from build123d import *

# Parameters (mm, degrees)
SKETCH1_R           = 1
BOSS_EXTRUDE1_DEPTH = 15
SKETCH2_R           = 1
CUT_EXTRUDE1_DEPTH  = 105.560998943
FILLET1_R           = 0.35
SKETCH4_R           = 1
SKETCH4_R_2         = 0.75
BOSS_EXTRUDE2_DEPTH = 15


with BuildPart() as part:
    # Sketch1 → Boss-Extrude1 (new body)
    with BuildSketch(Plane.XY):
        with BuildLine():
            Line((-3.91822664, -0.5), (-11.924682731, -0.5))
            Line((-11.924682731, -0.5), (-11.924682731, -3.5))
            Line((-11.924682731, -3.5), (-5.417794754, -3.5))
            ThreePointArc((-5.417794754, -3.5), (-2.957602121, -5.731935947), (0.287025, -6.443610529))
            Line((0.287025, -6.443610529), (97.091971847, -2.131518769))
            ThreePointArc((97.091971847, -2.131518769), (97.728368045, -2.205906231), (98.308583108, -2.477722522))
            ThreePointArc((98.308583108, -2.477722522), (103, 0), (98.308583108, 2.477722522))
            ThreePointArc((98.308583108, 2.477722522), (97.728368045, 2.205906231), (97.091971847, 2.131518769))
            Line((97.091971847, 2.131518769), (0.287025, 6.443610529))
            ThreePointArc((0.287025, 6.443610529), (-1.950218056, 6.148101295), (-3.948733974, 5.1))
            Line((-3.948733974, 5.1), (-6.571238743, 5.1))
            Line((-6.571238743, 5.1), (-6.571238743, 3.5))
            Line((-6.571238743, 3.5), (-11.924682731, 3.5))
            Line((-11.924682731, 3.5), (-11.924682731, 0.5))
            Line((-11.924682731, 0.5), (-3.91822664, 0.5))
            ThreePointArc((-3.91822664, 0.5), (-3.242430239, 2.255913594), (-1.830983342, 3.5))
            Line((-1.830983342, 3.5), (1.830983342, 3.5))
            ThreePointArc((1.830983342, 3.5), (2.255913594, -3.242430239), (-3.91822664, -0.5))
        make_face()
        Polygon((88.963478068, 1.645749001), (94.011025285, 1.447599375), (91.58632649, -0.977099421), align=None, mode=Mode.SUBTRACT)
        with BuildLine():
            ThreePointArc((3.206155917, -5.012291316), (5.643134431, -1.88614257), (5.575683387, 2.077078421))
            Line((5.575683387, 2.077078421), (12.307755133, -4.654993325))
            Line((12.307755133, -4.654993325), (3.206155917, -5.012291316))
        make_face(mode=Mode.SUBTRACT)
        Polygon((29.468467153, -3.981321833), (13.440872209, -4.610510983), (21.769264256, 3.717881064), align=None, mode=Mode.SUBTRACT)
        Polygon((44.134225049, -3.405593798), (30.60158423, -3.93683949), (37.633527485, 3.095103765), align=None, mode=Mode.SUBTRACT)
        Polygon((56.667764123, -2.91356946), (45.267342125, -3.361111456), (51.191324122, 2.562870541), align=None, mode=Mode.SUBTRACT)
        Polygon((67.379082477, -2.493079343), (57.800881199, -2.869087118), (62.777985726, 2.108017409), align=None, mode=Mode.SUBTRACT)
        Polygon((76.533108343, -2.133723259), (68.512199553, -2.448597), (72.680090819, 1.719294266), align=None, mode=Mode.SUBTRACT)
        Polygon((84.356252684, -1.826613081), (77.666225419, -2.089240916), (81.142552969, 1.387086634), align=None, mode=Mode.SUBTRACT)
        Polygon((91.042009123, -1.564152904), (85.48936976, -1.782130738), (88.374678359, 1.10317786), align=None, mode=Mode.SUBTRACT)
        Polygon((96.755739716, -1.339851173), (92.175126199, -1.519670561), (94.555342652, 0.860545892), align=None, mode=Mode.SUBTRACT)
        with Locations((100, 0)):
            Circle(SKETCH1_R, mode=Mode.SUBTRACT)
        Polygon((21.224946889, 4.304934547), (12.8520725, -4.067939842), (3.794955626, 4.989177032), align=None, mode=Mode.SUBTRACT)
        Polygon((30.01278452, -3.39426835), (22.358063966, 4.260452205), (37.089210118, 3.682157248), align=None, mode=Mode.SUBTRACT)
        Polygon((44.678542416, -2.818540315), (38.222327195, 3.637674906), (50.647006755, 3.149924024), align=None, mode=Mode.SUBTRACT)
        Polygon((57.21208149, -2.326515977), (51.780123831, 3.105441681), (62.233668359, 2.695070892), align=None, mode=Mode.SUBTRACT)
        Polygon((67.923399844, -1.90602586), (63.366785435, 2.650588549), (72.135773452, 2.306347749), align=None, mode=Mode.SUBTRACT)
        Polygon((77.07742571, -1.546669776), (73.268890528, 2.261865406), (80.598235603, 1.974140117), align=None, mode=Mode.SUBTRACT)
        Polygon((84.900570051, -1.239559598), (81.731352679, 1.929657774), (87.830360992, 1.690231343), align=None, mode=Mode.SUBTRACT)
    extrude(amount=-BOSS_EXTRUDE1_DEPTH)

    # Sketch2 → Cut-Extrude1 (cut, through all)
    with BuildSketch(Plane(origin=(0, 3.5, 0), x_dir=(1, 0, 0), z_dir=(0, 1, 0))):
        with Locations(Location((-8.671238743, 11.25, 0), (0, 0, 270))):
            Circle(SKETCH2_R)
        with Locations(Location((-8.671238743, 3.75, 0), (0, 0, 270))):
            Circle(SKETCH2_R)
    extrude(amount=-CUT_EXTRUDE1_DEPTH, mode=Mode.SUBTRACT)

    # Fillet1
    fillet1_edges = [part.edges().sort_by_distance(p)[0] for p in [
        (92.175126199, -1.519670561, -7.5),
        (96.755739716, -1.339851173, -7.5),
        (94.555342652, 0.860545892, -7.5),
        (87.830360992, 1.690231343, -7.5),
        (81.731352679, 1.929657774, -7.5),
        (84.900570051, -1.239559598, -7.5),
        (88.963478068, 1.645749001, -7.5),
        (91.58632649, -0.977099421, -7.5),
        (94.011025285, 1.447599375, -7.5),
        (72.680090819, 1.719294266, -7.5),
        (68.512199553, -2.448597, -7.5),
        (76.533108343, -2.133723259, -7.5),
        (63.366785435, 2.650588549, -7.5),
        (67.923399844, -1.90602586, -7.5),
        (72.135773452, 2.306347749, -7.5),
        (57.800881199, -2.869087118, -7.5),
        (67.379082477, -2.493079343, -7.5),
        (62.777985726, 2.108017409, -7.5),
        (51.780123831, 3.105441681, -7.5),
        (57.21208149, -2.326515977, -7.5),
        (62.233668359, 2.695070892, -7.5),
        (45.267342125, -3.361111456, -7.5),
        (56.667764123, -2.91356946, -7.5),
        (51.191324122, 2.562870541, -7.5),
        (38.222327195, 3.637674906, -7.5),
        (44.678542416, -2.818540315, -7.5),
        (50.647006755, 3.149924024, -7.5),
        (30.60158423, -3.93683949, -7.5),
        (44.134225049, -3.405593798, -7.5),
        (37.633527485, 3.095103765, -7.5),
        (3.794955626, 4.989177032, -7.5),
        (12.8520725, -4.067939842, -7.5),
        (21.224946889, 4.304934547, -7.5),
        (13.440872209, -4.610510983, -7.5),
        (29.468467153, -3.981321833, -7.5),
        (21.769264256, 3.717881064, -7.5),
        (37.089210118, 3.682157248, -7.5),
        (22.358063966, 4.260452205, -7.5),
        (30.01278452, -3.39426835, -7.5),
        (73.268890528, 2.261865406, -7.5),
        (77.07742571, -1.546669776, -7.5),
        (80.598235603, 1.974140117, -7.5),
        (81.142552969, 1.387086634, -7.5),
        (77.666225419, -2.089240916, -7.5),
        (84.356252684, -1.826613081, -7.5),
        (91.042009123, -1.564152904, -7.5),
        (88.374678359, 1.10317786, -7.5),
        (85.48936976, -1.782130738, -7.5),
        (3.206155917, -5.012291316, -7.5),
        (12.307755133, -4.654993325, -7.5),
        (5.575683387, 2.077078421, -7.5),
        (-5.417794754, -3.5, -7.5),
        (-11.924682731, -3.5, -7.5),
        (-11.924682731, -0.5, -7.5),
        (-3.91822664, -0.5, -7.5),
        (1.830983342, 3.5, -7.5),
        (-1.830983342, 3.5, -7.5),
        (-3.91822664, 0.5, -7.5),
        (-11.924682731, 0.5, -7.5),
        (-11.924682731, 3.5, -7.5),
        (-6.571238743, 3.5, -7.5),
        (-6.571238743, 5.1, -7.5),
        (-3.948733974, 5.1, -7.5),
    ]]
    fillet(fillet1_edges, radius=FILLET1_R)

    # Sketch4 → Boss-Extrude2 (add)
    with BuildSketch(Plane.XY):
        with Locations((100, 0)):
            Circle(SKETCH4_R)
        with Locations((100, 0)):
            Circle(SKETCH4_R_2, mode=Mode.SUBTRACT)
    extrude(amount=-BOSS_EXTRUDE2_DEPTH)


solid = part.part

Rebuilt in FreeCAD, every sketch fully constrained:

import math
import FreeCAD as App
import Part
import Sketcher

V = App.Vector
Q = App.Units.Quantity


def edges_at(feature, points):
    """Names of the edges that pass closest to the given points."""
    edges = feature.Shape.Edges
    near = lambda p: min(range(len(edges)), key=lambda i: edges[i].distToShape(Part.Vertex(*p))[0])
    return sorted({f"Edge{near(p) + 1}" for p in points})

doc = App.newDocument("Part")
body = doc.addObject("PartDesign::Body", "Body")

# Sketch on XY plane
sketch1 = doc.addObject("Sketcher::SketchObject", "Sketch")
body.addObject(sketch1)
sketch1.AttachmentSupport = (doc.XY_Plane, [""])
sketch1.MapMode = "FlatFace"
sketch1.addGeometry(Part.LineSegment(V(-3.9, -0.5, 0), V(-11.9, -0.5, 0)), False)
sketch1.addGeometry(Part.LineSegment(V(-11.9, -0.5, 0), V(-11.9, -3.5, 0)), False)
sketch1.addGeometry(Part.LineSegment(V(-11.9, -3.5, 0), V(-5.4, -3.5, 0)), False)
sketch1.addGeometry(Part.ArcOfCircle(Part.Circle(V(0, 0, 0), V(0, 0, 1), 6.4), math.radians(-147), math.radians(-87)), False)
sketch1.addGeometry(Part.LineSegment(V(0.3, -6.4, 0), V(97.1, -2.1, 0)), False)
sketch1.addGeometry(Part.ArcOfCircle(Part.Circle(V(97.2, -4.1, 0), V(0, 0, 1), 2), math.radians(56), math.radians(93)), False)
sketch1.addGeometry(Part.ArcOfCircle(Part.Circle(V(100, 0, 0), V(0, 0, 1), 3), math.radians(-124), math.radians(124)), False)
sketch1.addGeometry(Part.ArcOfCircle(Part.Circle(V(97.2, 4.1, 0), V(0, 0, 1), 2), math.radians(-93), math.radians(-56)), False)
sketch1.addGeometry(Part.LineSegment(V(97.1, 2.1, 0), V(0.3, 6.4, 0)), False)
sketch1.addGeometry(Part.ArcOfCircle(Part.Circle(V(0, 0, 0), V(0, 0, 1), 6.4), math.radians(87), math.radians(128)), False)
sketch1.addGeometry(Part.LineSegment(V(-3.9, 5.1, 0), V(-6.6, 5.1, 0)), False)
sketch1.addGeometry(Part.LineSegment(V(-6.6, 5.1, 0), V(-6.6, 3.5, 0)), False)
sketch1.addGeometry(Part.LineSegment(V(-6.6, 3.5, 0), V(-11.9, 3.5, 0)), False)
sketch1.addGeometry(Part.LineSegment(V(-11.9, 3.5, 0), V(-11.9, 0.5, 0)), False)
sketch1.addGeometry(Part.LineSegment(V(-11.9, 0.5, 0), V(-3.9, 0.5, 0)), False)
sketch1.addGeometry(Part.ArcOfCircle(Part.Circle(V(0, 0, 0), V(0, 0, 1), 4), math.radians(118), math.radians(173)), False)
sketch1.addGeometry(Part.LineSegment(V(-1.8, 3.5, 0), V(1.8, 3.5, 0)), False)
sketch1.addGeometry(Part.ArcOfCircle(Part.Circle(V(0, 0, 0), V(0, 0, 1), 4), math.radians(-173), math.radians(62)), False)
sketch1.addGeometry(Part.LineSegment(V(12.3, -4.7, 0), V(3.2, -5, 0)), False)
sketch1.addGeometry(Part.ArcOfCircle(Part.Circle(V(0, 0, 0), V(0, 0, 1), 6), math.radians(-57), math.radians(20)), False)
sketch1.addGeometry(Part.LineSegment(V(5.6, 2.1, 0), V(12.3, -4.7, 0)), False)
sketch1.addGeometry(Part.LineSegment(V(21.8, 3.7, 0), V(29.5, -4, 0)), False)
sketch1.addGeometry(Part.LineSegment(V(29.5, -4, 0), V(13.4, -4.6, 0)), False)
sketch1.addGeometry(Part.LineSegment(V(13.4, -4.6, 0), V(21.8, 3.7, 0)), False)
sketch1.addGeometry(Part.LineSegment(V(37.6, 3.1, 0), V(44.1, -3.4, 0)), False)
sketch1.addGeometry(Part.LineSegment(V(44.1, -3.4, 0), V(30.6, -3.9, 0)), False)
sketch1.addGeometry(Part.LineSegment(V(30.6, -3.9, 0), V(37.6, 3.1, 0)), False)
sketch1.addGeometry(Part.LineSegment(V(51.2, 2.6, 0), V(56.7, -2.9, 0)), False)
sketch1.addGeometry(Part.LineSegment(V(56.7, -2.9, 0), V(45.3, -3.4, 0)), False)
sketch1.addGeometry(Part.LineSegment(V(45.3, -3.4, 0), V(51.2, 2.6, 0)), False)
sketch1.addGeometry(Part.LineSegment(V(62.8, 2.1, 0), V(67.4, -2.5, 0)), False)
sketch1.addGeometry(Part.LineSegment(V(67.4, -2.5, 0), V(57.8, -2.9, 0)), False)
sketch1.addGeometry(Part.LineSegment(V(57.8, -2.9, 0), V(62.8, 2.1, 0)), False)
sketch1.addGeometry(Part.LineSegment(V(72.7, 1.7, 0), V(76.5, -2.1, 0)), False)
sketch1.addGeometry(Part.LineSegment(V(76.5, -2.1, 0), V(68.5, -2.4, 0)), False)
sketch1.addGeometry(Part.LineSegment(V(68.5, -2.4, 0), V(72.7, 1.7, 0)), False)
sketch1.addGeometry(Part.LineSegment(V(81.1, 1.4, 0), V(84.4, -1.8, 0)), False)
sketch1.addGeometry(Part.LineSegment(V(84.4, -1.8, 0), V(77.7, -2.1, 0)), False)
sketch1.addGeometry(Part.LineSegment(V(77.7, -2.1, 0), V(81.1, 1.4, 0)), False)
sketch1.addGeometry(Part.LineSegment(V(88.4, 1.1, 0), V(91, -1.6, 0)), False)
sketch1.addGeometry(Part.LineSegment(V(91, -1.6, 0), V(85.5, -1.8, 0)), False)
sketch1.addGeometry(Part.LineSegment(V(85.5, -1.8, 0), V(88.4, 1.1, 0)), False)
sketch1.addGeometry(Part.LineSegment(V(94.6, 0.9, 0), V(96.8, -1.3, 0)), False)
sketch1.addGeometry(Part.LineSegment(V(96.8, -1.3, 0), V(92.2, -1.5, 0)), False)
sketch1.addGeometry(Part.LineSegment(V(92.2, -1.5, 0), V(94.6, 0.9, 0)), False)
sketch1.addGeometry(Part.LineSegment(V(3.8, 5, 0), V(21.2, 4.3, 0)), False)
sketch1.addGeometry(Part.LineSegment(V(21.2, 4.3, 0), V(12.9, -4.1, 0)), False)
sketch1.addGeometry(Part.LineSegment(V(12.9, -4.1, 0), V(3.8, 5, 0)), False)
sketch1.addGeometry(Part.LineSegment(V(37.1, 3.7, 0), V(30, -3.4, 0)), False)
sketch1.addGeometry(Part.LineSegment(V(30, -3.4, 0), V(22.4, 4.3, 0)), False)
sketch1.addGeometry(Part.LineSegment(V(22.4, 4.3, 0), V(37.1, 3.7, 0)), False)
sketch1.addGeometry(Part.LineSegment(V(50.6, 3.1, 0), V(44.7, -2.8, 0)), False)
sketch1.addGeometry(Part.LineSegment(V(44.7, -2.8, 0), V(38.2, 3.6, 0)), False)
sketch1.addGeometry(Part.LineSegment(V(38.2, 3.6, 0), V(50.6, 3.1, 0)), False)
sketch1.addGeometry(Part.LineSegment(V(62.2, 2.7, 0), V(57.2, -2.3, 0)), False)
sketch1.addGeometry(Part.LineSegment(V(57.2, -2.3, 0), V(51.8, 3.1, 0)), False)
sketch1.addGeometry(Part.LineSegment(V(51.8, 3.1, 0), V(62.2, 2.7, 0)), False)
sketch1.addGeometry(Part.LineSegment(V(72.1, 2.3, 0), V(67.9, -1.9, 0)), False)
sketch1.addGeometry(Part.LineSegment(V(67.9, -1.9, 0), V(63.4, 2.7, 0)), False)
sketch1.addGeometry(Part.LineSegment(V(63.4, 2.7, 0), V(72.1, 2.3, 0)), False)
sketch1.addGeometry(Part.LineSegment(V(80.6, 2, 0), V(77.1, -1.5, 0)), False)
sketch1.addGeometry(Part.LineSegment(V(77.1, -1.5, 0), V(73.3, 2.3, 0)), False)
sketch1.addGeometry(Part.LineSegment(V(73.3, 2.3, 0), V(80.6, 2, 0)), False)
sketch1.addGeometry(Part.LineSegment(V(87.8, 1.7, 0), V(84.9, -1.2, 0)), False)
sketch1.addGeometry(Part.LineSegment(V(84.9, -1.2, 0), V(81.7, 1.9, 0)), False)
sketch1.addGeometry(Part.LineSegment(V(81.7, 1.9, 0), V(87.8, 1.7, 0)), False)
sketch1.addGeometry(Part.LineSegment(V(91.6, -1, 0), V(89, 1.6, 0)), False)
sketch1.addGeometry(Part.LineSegment(V(89, 1.6, 0), V(94, 1.4, 0)), False)
sketch1.addGeometry(Part.LineSegment(V(94, 1.4, 0), V(91.6, -1, 0)), False)
sketch1.addGeometry(Part.Circle(V(100, 0, 0), V(0, 0, 1), 1), False)
sketch1.addConstraint(Sketcher.Constraint("Coincident", 0, 2, 1, 1))
sketch1.addConstraint(Sketcher.Constraint("Coincident", 1, 2, 2, 1))
sketch1.addConstraint(Sketcher.Constraint("Coincident", 2, 2, 3, 1))
sketch1.addConstraint(Sketcher.Constraint("Tangent", 3, 2, 4, 1))
sketch1.addConstraint(Sketcher.Constraint("Tangent", 4, 2, 5, 2))
sketch1.addConstraint(Sketcher.Constraint("Tangent", 5, 1, 6, 1))
sketch1.addConstraint(Sketcher.Constraint("Tangent", 6, 2, 7, 2))
sketch1.addConstraint(Sketcher.Constraint("Tangent", 7, 1, 8, 1))
sketch1.addConstraint(Sketcher.Constraint("Tangent", 8, 2, 9, 1))
sketch1.addConstraint(Sketcher.Constraint("Coincident", 9, 2, 10, 1))
sketch1.addConstraint(Sketcher.Constraint("Coincident", 10, 2, 11, 1))
sketch1.addConstraint(Sketcher.Constraint("Coincident", 11, 2, 12, 1))
sketch1.addConstraint(Sketcher.Constraint("Coincident", 12, 2, 13, 1))
sketch1.addConstraint(Sketcher.Constraint("Coincident", 13, 2, 14, 1))
sketch1.addConstraint(Sketcher.Constraint("Coincident", 14, 2, 15, 2))
sketch1.addConstraint(Sketcher.Constraint("Coincident", 15, 1, 16, 1))
sketch1.addConstraint(Sketcher.Constraint("Coincident", 16, 2, 17, 2))
sketch1.addConstraint(Sketcher.Constraint("Coincident", 17, 1, 0, 1))
sketch1.addConstraint(Sketcher.Constraint("Coincident", 18, 2, 19, 1))
sketch1.addConstraint(Sketcher.Constraint("Coincident", 19, 2, 20, 1))
sketch1.addConstraint(Sketcher.Constraint("Coincident", 20, 2, 18, 1))
sketch1.addConstraint(Sketcher.Constraint("Coincident", 21, 2, 22, 1))
sketch1.addConstraint(Sketcher.Constraint("Coincident", 22, 2, 23, 1))
sketch1.addConstraint(Sketcher.Constraint("Coincident", 23, 2, 21, 1))
sketch1.addConstraint(Sketcher.Constraint("Coincident", 24, 2, 25, 1))
sketch1.addConstraint(Sketcher.Constraint("Coincident", 25, 2, 26, 1))
sketch1.addConstraint(Sketcher.Constraint("Coincident", 26, 2, 24, 1))
sketch1.addConstraint(Sketcher.Constraint("Coincident", 27, 2, 28, 1))
sketch1.addConstraint(Sketcher.Constraint("Coincident", 28, 2, 29, 1))
sketch1.addConstraint(Sketcher.Constraint("Coincident", 29, 2, 27, 1))
sketch1.addConstraint(Sketcher.Constraint("Coincident", 30, 2, 31, 1))
sketch1.addConstraint(Sketcher.Constraint("Coincident", 31, 2, 32, 1))
sketch1.addConstraint(Sketcher.Constraint("Coincident", 32, 2, 30, 1))
sketch1.addConstraint(Sketcher.Constraint("Coincident", 33, 2, 34, 1))
sketch1.addConstraint(Sketcher.Constraint("Coincident", 34, 2, 35, 1))
sketch1.addConstraint(Sketcher.Constraint("Coincident", 35, 2, 33, 1))
sketch1.addConstraint(Sketcher.Constraint("Coincident", 36, 2, 37, 1))
sketch1.addConstraint(Sketcher.Constraint("Coincident", 37, 2, 38, 1))
sketch1.addConstraint(Sketcher.Constraint("Coincident", 38, 2, 36, 1))
sketch1.addConstraint(Sketcher.Constraint("Coincident", 39, 2, 40, 1))
sketch1.addConstraint(Sketcher.Constraint("Coincident", 40, 2, 41, 1))
sketch1.addConstraint(Sketcher.Constraint("Coincident", 41, 2, 39, 1))
sketch1.addConstraint(Sketcher.Constraint("Coincident", 42, 2, 43, 1))
sketch1.addConstraint(Sketcher.Constraint("Coincident", 43, 2, 44, 1))
sketch1.addConstraint(Sketcher.Constraint("Coincident", 44, 2, 42, 1))
sketch1.addConstraint(Sketcher.Constraint("Coincident", 45, 2, 46, 1))
sketch1.addConstraint(Sketcher.Constraint("Coincident", 46, 2, 47, 1))
sketch1.addConstraint(Sketcher.Constraint("Coincident", 47, 2, 45, 1))
sketch1.addConstraint(Sketcher.Constraint("Coincident", 48, 2, 49, 1))
sketch1.addConstraint(Sketcher.Constraint("Coincident", 49, 2, 50, 1))
sketch1.addConstraint(Sketcher.Constraint("Coincident", 50, 2, 48, 1))
sketch1.addConstraint(Sketcher.Constraint("Coincident", 51, 2, 52, 1))
sketch1.addConstraint(Sketcher.Constraint("Coincident", 52, 2, 53, 1))
sketch1.addConstraint(Sketcher.Constraint("Coincident", 53, 2, 51, 1))
sketch1.addConstraint(Sketcher.Constraint("Coincident", 54, 2, 55, 1))
sketch1.addConstraint(Sketcher.Constraint("Coincident", 55, 2, 56, 1))
sketch1.addConstraint(Sketcher.Constraint("Coincident", 56, 2, 54, 1))
sketch1.addConstraint(Sketcher.Constraint("Coincident", 57, 2, 58, 1))
sketch1.addConstraint(Sketcher.Constraint("Coincident", 58, 2, 59, 1))
sketch1.addConstraint(Sketcher.Constraint("Coincident", 59, 2, 57, 1))
sketch1.addConstraint(Sketcher.Constraint("Coincident", 60, 2, 61, 1))
sketch1.addConstraint(Sketcher.Constraint("Coincident", 61, 2, 62, 1))
sketch1.addConstraint(Sketcher.Constraint("Coincident", 62, 2, 60, 1))
sketch1.addConstraint(Sketcher.Constraint("Coincident", 63, 2, 64, 1))
sketch1.addConstraint(Sketcher.Constraint("Coincident", 64, 2, 65, 1))
sketch1.addConstraint(Sketcher.Constraint("Coincident", 65, 2, 63, 1))
sketch1.addConstraint(Sketcher.Constraint("Coincident", 66, 2, 67, 1))
sketch1.addConstraint(Sketcher.Constraint("Coincident", 67, 2, 68, 1))
sketch1.addConstraint(Sketcher.Constraint("Coincident", 68, 2, 66, 1))
sketch1.addConstraint(Sketcher.Constraint("Horizontal", 0))
sketch1.addConstraint(Sketcher.Constraint("Vertical", 1))
sketch1.addConstraint(Sketcher.Constraint("Horizontal", 2))
sketch1.addConstraint(Sketcher.Constraint("Horizontal", 10))
sketch1.addConstraint(Sketcher.Constraint("Vertical", 11))
sketch1.addConstraint(Sketcher.Constraint("Horizontal", 12))
sketch1.addConstraint(Sketcher.Constraint("Vertical", 13))
sketch1.addConstraint(Sketcher.Constraint("Horizontal", 14))
sketch1.addConstraint(Sketcher.Constraint("Horizontal", 16))
sketch1.addConstraint(Sketcher.Constraint("Coincident", 3, 3, -1, 1))
sketch1.addConstraint(Sketcher.Constraint("Coincident", 9, 3, -1, 1))
sketch1.addConstraint(Sketcher.Constraint("Coincident", 15, 3, -1, 1))
sketch1.addConstraint(Sketcher.Constraint("Coincident", 17, 3, -1, 1))
sketch1.addConstraint(Sketcher.Constraint("Coincident", 19, 3, -1, 1))
sketch1.addConstraint(Sketcher.Constraint("Coincident", 69, 3, 6, 3))
sketch1.addConstraint(Sketcher.Constraint("Equal", 5, 7))
sketch1.addConstraint(Sketcher.Constraint("Equal", 3, 9))
sketch1.addConstraint(Sketcher.Constraint("Equal", 15, 17))
sketch1.addConstraint(Sketcher.Constraint("Symmetric", 5, 3, 7, 3, -1))
sketch1.addConstraint(Sketcher.Constraint("Symmetric", 1, 2, 12, 2, -1))
sketch1.addConstraint(Sketcher.Constraint("Parallel", 20, 21))
sketch1.addConstraint(Sketcher.Constraint("Parallel", 18, 22))
sketch1.addConstraint(Sketcher.Constraint("Perpendicular", 21, 23))
sketch1.addConstraint(Sketcher.Constraint("Perpendicular", 23, 24))
sketch1.addConstraint(Sketcher.Constraint("Parallel", 22, 25))
sketch1.addConstraint(Sketcher.Constraint("Perpendicular", 24, 26))
sketch1.addConstraint(Sketcher.Constraint("Perpendicular", 26, 27))
sketch1.addConstraint(Sketcher.Constraint("Parallel", 25, 28))
sketch1.addConstraint(Sketcher.Constraint("Perpendicular", 27, 29))
sketch1.addConstraint(Sketcher.Constraint("Perpendicular", 29, 30))
sketch1.addConstraint(Sketcher.Constraint("Parallel", 28, 31))
sketch1.addConstraint(Sketcher.Constraint("Perpendicular", 30, 32))
sketch1.addConstraint(Sketcher.Constraint("Perpendicular", 32, 33))
sketch1.addConstraint(Sketcher.Constraint("Parallel", 31, 34))
sketch1.addConstraint(Sketcher.Constraint("Perpendicular", 33, 35))
sketch1.addConstraint(Sketcher.Constraint("Perpendicular", 35, 36))
sketch1.addConstraint(Sketcher.Constraint("Parallel", 34, 37))
sketch1.addConstraint(Sketcher.Constraint("Perpendicular", 36, 38))
sketch1.addConstraint(Sketcher.Constraint("Perpendicular", 38, 39))
sketch1.addConstraint(Sketcher.Constraint("Parallel", 37, 40))
sketch1.addConstraint(Sketcher.Constraint("Perpendicular", 39, 41))
sketch1.addConstraint(Sketcher.Constraint("Perpendicular", 41, 42))
sketch1.addConstraint(Sketcher.Constraint("Parallel", 40, 43))
sketch1.addConstraint(Sketcher.Constraint("Perpendicular", 42, 44))
sketch1.addConstraint(Sketcher.Constraint("Parallel", 44, 46))
sketch1.addConstraint(Sketcher.Constraint("Perpendicular", 46, 47))
sketch1.addConstraint(Sketcher.Constraint("Perpendicular", 47, 48))
sketch1.addConstraint(Sketcher.Constraint("Perpendicular", 48, 49))
sketch1.addConstraint(Sketcher.Constraint("Parallel", 45, 50))
sketch1.addConstraint(Sketcher.Constraint("Perpendicular", 49, 51))
sketch1.addConstraint(Sketcher.Constraint("Perpendicular", 51, 52))
sketch1.addConstraint(Sketcher.Constraint("Parallel", 50, 53))
sketch1.addConstraint(Sketcher.Constraint("Perpendicular", 52, 54))
sketch1.addConstraint(Sketcher.Constraint("Perpendicular", 54, 55))
sketch1.addConstraint(Sketcher.Constraint("Parallel", 53, 56))
sketch1.addConstraint(Sketcher.Constraint("Perpendicular", 55, 57))
sketch1.addConstraint(Sketcher.Constraint("Perpendicular", 57, 58))
sketch1.addConstraint(Sketcher.Constraint("Parallel", 56, 59))
sketch1.addConstraint(Sketcher.Constraint("Perpendicular", 58, 60))
sketch1.addConstraint(Sketcher.Constraint("Perpendicular", 60, 61))
sketch1.addConstraint(Sketcher.Constraint("Parallel", 59, 62))
sketch1.addConstraint(Sketcher.Constraint("Perpendicular", 61, 63))
sketch1.addConstraint(Sketcher.Constraint("Perpendicular", 63, 64))
sketch1.addConstraint(Sketcher.Constraint("Parallel", 62, 65))
sketch1.addConstraint(Sketcher.Constraint("Parallel", 64, 66))
sketch1.addConstraint(Sketcher.Constraint("Parallel", 65, 67))
sketch1.addConstraint(Sketcher.Constraint("Perpendicular", 66, 68))
sketch1.addConstraint(Sketcher.Constraint("Horizontal", 12, 2, 15, 1))
sketch1.addConstraint(Sketcher.Constraint("Vertical", 14, 2, 17, 1))
sketch1.addConstraint(Sketcher.Constraint("Diameter", 69, Q("2 mm")))
sketch1.addConstraint(Sketcher.Constraint("Radius", 5, Q("2 mm")))
sketch1.addConstraint(Sketcher.Constraint("Radius", 6, Q("3 mm")))
sketch1.addConstraint(Sketcher.Constraint("DistanceY", 1, 2, 1, 1, Q("3 mm")))
sketch1.addConstraint(Sketcher.Constraint("Angle", 20, Q("-45 deg")))
sketch1.addConstraint(Sketcher.Constraint("Radius", 3, Q("6.45 mm")))
sketch1.addConstraint(Sketcher.Constraint("Radius", 15, Q("3.95 mm")))
sketch1.addConstraint(Sketcher.Constraint("Radius", 19, Q("5.95 mm")))
sketch1.addConstraint(Sketcher.Constraint("DistanceY", 11, 2, 11, 1, Q("1.6 mm")))
sketch1.addConstraint(Sketcher.Constraint("DistanceX", -1, 1, 6, 3, Q("100 mm")))
sketch1.addConstraint(Sketcher.Constraint("DistanceY", 0, 2, -1, 1, Q("0.5 mm")))
sketch1.addConstraint(Sketcher.Constraint("DistanceX", -1, 1, 34, 2, Q("68.5122 mm")))
sketch1.addConstraint(Sketcher.Constraint("DistanceX", -1, 1, 57, 2, Q("67.9234 mm")))
sketch1.addConstraint(Sketcher.Constraint("DistanceY", -1, 1, 67, 2, Q("1.447599 mm")))
sketch1.addConstraint(Sketcher.Constraint("DistanceY", 68, 2, -1, 1, Q("0.977099 mm")))
sketch1.addConstraint(Sketcher.Constraint("Distance", 4, Q("96.900938 mm")))
sketch1.addConstraint(Sketcher.Constraint("Distance", 18, Q("9.10861 mm")))
sketch1.addConstraint(Sketcher.Constraint("Distance", 22, Q("16.03994 mm")))
sketch1.addConstraint(Sketcher.Constraint("Distance", 26, Q("9.94467 mm")))
sketch1.addConstraint(Sketcher.Constraint("Distance", 31, Q("9.585579 mm")))
sketch1.addConstraint(Sketcher.Constraint("Distance", 32, Q("7.038689 mm")))
sketch1.addConstraint(Sketcher.Constraint("Distance", 33, Q("5.44899 mm")))
sketch1.addConstraint(Sketcher.Constraint("Distance", 37, Q("6.69518 mm")))
sketch1.addConstraint(Sketcher.Constraint("Distance", 42, Q("3.111831 mm")))
sketch1.addConstraint(Sketcher.Constraint("Distance", 49, Q("10.82541 mm")))
sketch1.addConstraint(Sketcher.Constraint("Distance", 53, Q("12.43425 mm")))
sketch1.addConstraint(Sketcher.Constraint("Distance", 55, Q("7.681948 mm")))
sketch1.addConstraint(Sketcher.Constraint("Distance", 62, Q("7.33499 mm")))
sketch1.addConstraint(Sketcher.Constraint("Distance", 63, Q("4.14335 mm")))
sketch1.addConstraint(Sketcher.Constraint("Distance", 64, Q("4.48195 mm")))
sketch1.addConstraint(Sketcher.Constraint("DistanceX", 0, 2, 0, 1, Q("8.006456 mm")))
sketch1.addConstraint(Sketcher.Constraint("DistanceX", 10, 2, 10, 1, Q("2.622505 mm")))
sketch1.addConstraint(Sketcher.Constraint("DistanceY", 18, 2, -1, 1, Q("5.012291 mm")))
sketch1.addConstraint(Sketcher.Constraint("DistanceY", 21, 2, -1, 1, Q("3.981322 mm")))
sketch1.addConstraint(Sketcher.Constraint("DistanceY", 25, 2, -1, 1, Q("3.936839 mm")))
sketch1.addConstraint(Sketcher.Constraint("DistanceY", 27, 2, -1, 1, Q("2.913569 mm")))
sketch1.addConstraint(Sketcher.Constraint("DistanceY", 28, 2, -1, 1, Q("3.361111 mm")))
sketch1.addConstraint(Sketcher.Constraint("DistanceY", 30, 2, -1, 1, Q("2.493079 mm")))
sketch1.addConstraint(Sketcher.Constraint("DistanceX", -1, 1, 31, 2, Q("57.800881 mm")))
sketch1.addConstraint(Sketcher.Constraint("DistanceY", 37, 2, -1, 1, Q("2.089241 mm")))
sketch1.addConstraint(Sketcher.Constraint("DistanceX", -1, 1, 39, 2, Q("91.042009 mm")))
sketch1.addConstraint(Sketcher.Constraint("DistanceX", -1, 1, 40, 2, Q("85.48937 mm")))
sketch1.addConstraint(Sketcher.Constraint("DistanceY", 40, 2, -1, 1, Q("1.782131 mm")))
sketch1.addConstraint(Sketcher.Constraint("DistanceX", -1, 1, 42, 2, Q("96.75574 mm")))
sketch1.addConstraint(Sketcher.Constraint("DistanceY", 42, 2, -1, 1, Q("1.339851 mm")))
sketch1.addConstraint(Sketcher.Constraint("DistanceY", 46, 2, -1, 1, Q("4.06794 mm")))
sketch1.addConstraint(Sketcher.Constraint("DistanceY", 48, 2, -1, 1, Q("3.394268 mm")))
sketch1.addConstraint(Sketcher.Constraint("DistanceX", -1, 1, 50, 2, Q("37.08921 mm")))
sketch1.addConstraint(Sketcher.Constraint("DistanceY", 51, 2, -1, 1, Q("2.81854 mm")))
sketch1.addConstraint(Sketcher.Constraint("DistanceX", -1, 1, 54, 2, Q("57.212081 mm")))
sketch1.addConstraint(Sketcher.Constraint("DistanceY", -1, 1, 55, 2, Q("3.105442 mm")))
sketch1.addConstraint(Sketcher.Constraint("DistanceY", -1, 1, 58, 2, Q("2.650589 mm")))
sketch1.addConstraint(Sketcher.Constraint("DistanceY", 60, 2, -1, 1, Q("1.54667 mm")))
sketch1.addConstraint(Sketcher.Constraint("DistanceX", -1, 1, 61, 2, Q("73.268891 mm")))
sketch1.addConstraint(Sketcher.Constraint("DistanceX", -1, 1, 63, 2, Q("84.90057 mm")))
sketch1.addConstraint(Sketcher.Constraint("DistanceY", 63, 2, -1, 1, Q("1.23956 mm")))
sketch1.addConstraint(Sketcher.Constraint("DistanceX", -1, 1, 66, 2, Q("88.963478 mm")))
sketch1.addConstraint(Sketcher.Constraint("Distance", 45, Q("17.443417 mm")))
sketch1.addConstraint(Sketcher.Constraint("Distance", 57, Q("5.957196 mm")))
sketch1.addConstraint(Sketcher.Constraint("DistanceX", -1, 1, 21, 2, Q("29.468467 mm")))
sketch1.addConstraint(Sketcher.Constraint("DistanceX", -1, 1, 24, 2, Q("44.134225 mm")))
sketch1.addConstraint(Sketcher.Constraint("DistanceX", -1, 1, 27, 2, Q("56.667764 mm")))
sketch1.addConstraint(Sketcher.Constraint("DistanceY", 33, 2, -1, 1, Q("2.133723 mm")))
sketch1.addConstraint(Sketcher.Constraint("DistanceX", -1, 1, 36, 2, Q("84.356253 mm")))
sketch1.addConstraint(Sketcher.Constraint("DistanceX", -1, 1, 45, 2, Q("21.224947 mm")))
sketch1.addConstraint(Sketcher.Constraint("DistanceX", -1, 1, 51, 2, Q("44.678542 mm")))
pad1 = doc.addObject("PartDesign::Pad", "Pad")
body.addObject(pad1)
pad1.Profile = sketch1
pad1.Length = 15
pad1.Reversed = True

# Sketch on XZ plane
sketch2 = doc.addObject("Sketcher::SketchObject", "Sketch001")
body.addObject(sketch2)
sketch2.AttachmentSupport = (doc.XZ_Plane, [""])
sketch2.MapMode = "FlatFace"
sketch2.AttachmentOffset = App.Placement(V(0, 0, -3.5), App.Rotation())
sketch2.addGeometry(Part.Circle(V(-8.7, -11.2, 0), V(0, 0, 1), 1), False)
sketch2.addGeometry(Part.Circle(V(-8.7, -3.8, 0), V(0, 0, 1), 1), False)
sketch2.addConstraint(Sketcher.Constraint("Equal", 0, 1))
sketch2.addConstraint(Sketcher.Constraint("Vertical", 0, 3, 1, 3))
sketch2.addConstraint(Sketcher.Constraint("Diameter", 0, Q("2 mm")))
sketch2.addConstraint(Sketcher.Constraint("DistanceY", 0, 3, 1, 3, Q("7.5 mm")))
sketch2.addConstraint(Sketcher.Constraint("DistanceY", 0, 3, -1, 1, Q("11.25 mm")))
sketch2.addConstraint(Sketcher.Constraint("DistanceX", 0, 3, -1, 1, Q("8.671239 mm")))
pocket1 = doc.addObject("PartDesign::Pocket", "Pocket")
body.addObject(pocket1)
pocket1.Profile = sketch2
pocket1.Type = "ThroughAll"
pocket1.Reversed = True
doc.recompute()

fillet = doc.addObject("PartDesign::Fillet", "Fillet")
body.addObject(fillet)
fillet.Base = (pocket1, edges_at(pocket1, [
    (92.175, -1.52, -7.5),
    (96.756, -1.34, -7.5),
    (94.555, 0.861, -7.5),
    (87.83, 1.69, -7.5),
    (81.731, 1.93, -7.5),
    (84.901, -1.24, -7.5),
    (88.963, 1.646, -7.5),
    (91.586, -0.977, -7.5),
    (94.011, 1.448, -7.5),
    (72.68, 1.719, -7.5),
    (68.512, -2.449, -7.5),
    (76.533, -2.134, -7.5),
    (63.367, 2.651, -7.5),
    (67.923, -1.906, -7.5),
    (72.136, 2.306, -7.5),
    (57.801, -2.869, -7.5),
    (67.379, -2.493, -7.5),
    (62.778, 2.108, -7.5),
    (51.78, 3.105, -7.5),
    (57.212, -2.327, -7.5),
    (62.234, 2.695, -7.5),
    (45.267, -3.361, -7.5),
    (56.668, -2.914, -7.5),
    (51.191, 2.563, -7.5),
    (38.222, 3.638, -7.5),
    (44.679, -2.819, -7.5),
    (50.647, 3.15, -7.5),
    (30.602, -3.937, -7.5),
    (44.134, -3.406, -7.5),
    (37.634, 3.095, -7.5),
    (3.795, 4.989, -7.5),
    (12.852, -4.068, -7.5),
    (21.225, 4.305, -7.5),
    (13.441, -4.611, -7.5),
    (29.468, -3.981, -7.5),
    (21.769, 3.718, -7.5),
    (37.089, 3.682, -7.5),
    (22.358, 4.26, -7.5),
    (30.013, -3.394, -7.5),
    (73.269, 2.262, -7.5),
    (77.077, -1.547, -7.5),
    (80.598, 1.974, -7.5),
    (81.143, 1.387, -7.5),
    (77.666, -2.089, -7.5),
    (84.356, -1.827, -7.5),
    (91.042, -1.564, -7.5),
    (88.375, 1.103, -7.5),
    (85.489, -1.782, -7.5),
    (3.206, -5.012, -7.5),
    (12.308, -4.655, -7.5),
    (5.576, 2.077, -7.5),
    (-5.418, -3.5, -7.5),
    (-11.925, -3.5, -7.5),
    (-11.925, -0.5, -7.5),
    (-3.918, -0.5, -7.5),
    (1.831, 3.5, -7.5),
    (-1.831, 3.5, -7.5),
    (-3.918, 0.5, -7.5),
    (-11.925, 0.5, -7.5),
    (-11.925, 3.5, -7.5),
    (-6.571, 3.5, -7.5),
    (-6.571, 5.1, -7.5),
    (-3.949, 5.1, -7.5),
]))
fillet.Radius = 0.35

# Sketch on XY plane
sketch3 = doc.addObject("Sketcher::SketchObject", "Sketch002")
body.addObject(sketch3)
sketch3.AttachmentSupport = (doc.XY_Plane, [""])
sketch3.MapMode = "FlatFace"
sketch3.addGeometry(Part.Circle(V(100, 0, 0), V(0, 0, 1), 1), False)
sketch3.addGeometry(Part.Circle(V(100, 0, 0), V(0, 0, 1), 0.8), False)
sketch3.addConstraint(Sketcher.Constraint("Coincident", 1, 3, 0, 3))
sketch3.addConstraint(Sketcher.Constraint("PointOnObject", 0, 3, -1))
sketch3.addConstraint(Sketcher.Constraint("Diameter", 0, Q("2 mm")))
sketch3.addConstraint(Sketcher.Constraint("Diameter", 1, Q("1.5 mm")))
sketch3.addConstraint(Sketcher.Constraint("DistanceX", -1, 1, 0, 3, Q("100 mm")))
pad2 = doc.addObject("PartDesign::Pad", "Pad001")
body.addObject(pad2)
pad2.Profile = sketch3
pad2.Length = 15
pad2.Reversed = True

doc.recompute()
